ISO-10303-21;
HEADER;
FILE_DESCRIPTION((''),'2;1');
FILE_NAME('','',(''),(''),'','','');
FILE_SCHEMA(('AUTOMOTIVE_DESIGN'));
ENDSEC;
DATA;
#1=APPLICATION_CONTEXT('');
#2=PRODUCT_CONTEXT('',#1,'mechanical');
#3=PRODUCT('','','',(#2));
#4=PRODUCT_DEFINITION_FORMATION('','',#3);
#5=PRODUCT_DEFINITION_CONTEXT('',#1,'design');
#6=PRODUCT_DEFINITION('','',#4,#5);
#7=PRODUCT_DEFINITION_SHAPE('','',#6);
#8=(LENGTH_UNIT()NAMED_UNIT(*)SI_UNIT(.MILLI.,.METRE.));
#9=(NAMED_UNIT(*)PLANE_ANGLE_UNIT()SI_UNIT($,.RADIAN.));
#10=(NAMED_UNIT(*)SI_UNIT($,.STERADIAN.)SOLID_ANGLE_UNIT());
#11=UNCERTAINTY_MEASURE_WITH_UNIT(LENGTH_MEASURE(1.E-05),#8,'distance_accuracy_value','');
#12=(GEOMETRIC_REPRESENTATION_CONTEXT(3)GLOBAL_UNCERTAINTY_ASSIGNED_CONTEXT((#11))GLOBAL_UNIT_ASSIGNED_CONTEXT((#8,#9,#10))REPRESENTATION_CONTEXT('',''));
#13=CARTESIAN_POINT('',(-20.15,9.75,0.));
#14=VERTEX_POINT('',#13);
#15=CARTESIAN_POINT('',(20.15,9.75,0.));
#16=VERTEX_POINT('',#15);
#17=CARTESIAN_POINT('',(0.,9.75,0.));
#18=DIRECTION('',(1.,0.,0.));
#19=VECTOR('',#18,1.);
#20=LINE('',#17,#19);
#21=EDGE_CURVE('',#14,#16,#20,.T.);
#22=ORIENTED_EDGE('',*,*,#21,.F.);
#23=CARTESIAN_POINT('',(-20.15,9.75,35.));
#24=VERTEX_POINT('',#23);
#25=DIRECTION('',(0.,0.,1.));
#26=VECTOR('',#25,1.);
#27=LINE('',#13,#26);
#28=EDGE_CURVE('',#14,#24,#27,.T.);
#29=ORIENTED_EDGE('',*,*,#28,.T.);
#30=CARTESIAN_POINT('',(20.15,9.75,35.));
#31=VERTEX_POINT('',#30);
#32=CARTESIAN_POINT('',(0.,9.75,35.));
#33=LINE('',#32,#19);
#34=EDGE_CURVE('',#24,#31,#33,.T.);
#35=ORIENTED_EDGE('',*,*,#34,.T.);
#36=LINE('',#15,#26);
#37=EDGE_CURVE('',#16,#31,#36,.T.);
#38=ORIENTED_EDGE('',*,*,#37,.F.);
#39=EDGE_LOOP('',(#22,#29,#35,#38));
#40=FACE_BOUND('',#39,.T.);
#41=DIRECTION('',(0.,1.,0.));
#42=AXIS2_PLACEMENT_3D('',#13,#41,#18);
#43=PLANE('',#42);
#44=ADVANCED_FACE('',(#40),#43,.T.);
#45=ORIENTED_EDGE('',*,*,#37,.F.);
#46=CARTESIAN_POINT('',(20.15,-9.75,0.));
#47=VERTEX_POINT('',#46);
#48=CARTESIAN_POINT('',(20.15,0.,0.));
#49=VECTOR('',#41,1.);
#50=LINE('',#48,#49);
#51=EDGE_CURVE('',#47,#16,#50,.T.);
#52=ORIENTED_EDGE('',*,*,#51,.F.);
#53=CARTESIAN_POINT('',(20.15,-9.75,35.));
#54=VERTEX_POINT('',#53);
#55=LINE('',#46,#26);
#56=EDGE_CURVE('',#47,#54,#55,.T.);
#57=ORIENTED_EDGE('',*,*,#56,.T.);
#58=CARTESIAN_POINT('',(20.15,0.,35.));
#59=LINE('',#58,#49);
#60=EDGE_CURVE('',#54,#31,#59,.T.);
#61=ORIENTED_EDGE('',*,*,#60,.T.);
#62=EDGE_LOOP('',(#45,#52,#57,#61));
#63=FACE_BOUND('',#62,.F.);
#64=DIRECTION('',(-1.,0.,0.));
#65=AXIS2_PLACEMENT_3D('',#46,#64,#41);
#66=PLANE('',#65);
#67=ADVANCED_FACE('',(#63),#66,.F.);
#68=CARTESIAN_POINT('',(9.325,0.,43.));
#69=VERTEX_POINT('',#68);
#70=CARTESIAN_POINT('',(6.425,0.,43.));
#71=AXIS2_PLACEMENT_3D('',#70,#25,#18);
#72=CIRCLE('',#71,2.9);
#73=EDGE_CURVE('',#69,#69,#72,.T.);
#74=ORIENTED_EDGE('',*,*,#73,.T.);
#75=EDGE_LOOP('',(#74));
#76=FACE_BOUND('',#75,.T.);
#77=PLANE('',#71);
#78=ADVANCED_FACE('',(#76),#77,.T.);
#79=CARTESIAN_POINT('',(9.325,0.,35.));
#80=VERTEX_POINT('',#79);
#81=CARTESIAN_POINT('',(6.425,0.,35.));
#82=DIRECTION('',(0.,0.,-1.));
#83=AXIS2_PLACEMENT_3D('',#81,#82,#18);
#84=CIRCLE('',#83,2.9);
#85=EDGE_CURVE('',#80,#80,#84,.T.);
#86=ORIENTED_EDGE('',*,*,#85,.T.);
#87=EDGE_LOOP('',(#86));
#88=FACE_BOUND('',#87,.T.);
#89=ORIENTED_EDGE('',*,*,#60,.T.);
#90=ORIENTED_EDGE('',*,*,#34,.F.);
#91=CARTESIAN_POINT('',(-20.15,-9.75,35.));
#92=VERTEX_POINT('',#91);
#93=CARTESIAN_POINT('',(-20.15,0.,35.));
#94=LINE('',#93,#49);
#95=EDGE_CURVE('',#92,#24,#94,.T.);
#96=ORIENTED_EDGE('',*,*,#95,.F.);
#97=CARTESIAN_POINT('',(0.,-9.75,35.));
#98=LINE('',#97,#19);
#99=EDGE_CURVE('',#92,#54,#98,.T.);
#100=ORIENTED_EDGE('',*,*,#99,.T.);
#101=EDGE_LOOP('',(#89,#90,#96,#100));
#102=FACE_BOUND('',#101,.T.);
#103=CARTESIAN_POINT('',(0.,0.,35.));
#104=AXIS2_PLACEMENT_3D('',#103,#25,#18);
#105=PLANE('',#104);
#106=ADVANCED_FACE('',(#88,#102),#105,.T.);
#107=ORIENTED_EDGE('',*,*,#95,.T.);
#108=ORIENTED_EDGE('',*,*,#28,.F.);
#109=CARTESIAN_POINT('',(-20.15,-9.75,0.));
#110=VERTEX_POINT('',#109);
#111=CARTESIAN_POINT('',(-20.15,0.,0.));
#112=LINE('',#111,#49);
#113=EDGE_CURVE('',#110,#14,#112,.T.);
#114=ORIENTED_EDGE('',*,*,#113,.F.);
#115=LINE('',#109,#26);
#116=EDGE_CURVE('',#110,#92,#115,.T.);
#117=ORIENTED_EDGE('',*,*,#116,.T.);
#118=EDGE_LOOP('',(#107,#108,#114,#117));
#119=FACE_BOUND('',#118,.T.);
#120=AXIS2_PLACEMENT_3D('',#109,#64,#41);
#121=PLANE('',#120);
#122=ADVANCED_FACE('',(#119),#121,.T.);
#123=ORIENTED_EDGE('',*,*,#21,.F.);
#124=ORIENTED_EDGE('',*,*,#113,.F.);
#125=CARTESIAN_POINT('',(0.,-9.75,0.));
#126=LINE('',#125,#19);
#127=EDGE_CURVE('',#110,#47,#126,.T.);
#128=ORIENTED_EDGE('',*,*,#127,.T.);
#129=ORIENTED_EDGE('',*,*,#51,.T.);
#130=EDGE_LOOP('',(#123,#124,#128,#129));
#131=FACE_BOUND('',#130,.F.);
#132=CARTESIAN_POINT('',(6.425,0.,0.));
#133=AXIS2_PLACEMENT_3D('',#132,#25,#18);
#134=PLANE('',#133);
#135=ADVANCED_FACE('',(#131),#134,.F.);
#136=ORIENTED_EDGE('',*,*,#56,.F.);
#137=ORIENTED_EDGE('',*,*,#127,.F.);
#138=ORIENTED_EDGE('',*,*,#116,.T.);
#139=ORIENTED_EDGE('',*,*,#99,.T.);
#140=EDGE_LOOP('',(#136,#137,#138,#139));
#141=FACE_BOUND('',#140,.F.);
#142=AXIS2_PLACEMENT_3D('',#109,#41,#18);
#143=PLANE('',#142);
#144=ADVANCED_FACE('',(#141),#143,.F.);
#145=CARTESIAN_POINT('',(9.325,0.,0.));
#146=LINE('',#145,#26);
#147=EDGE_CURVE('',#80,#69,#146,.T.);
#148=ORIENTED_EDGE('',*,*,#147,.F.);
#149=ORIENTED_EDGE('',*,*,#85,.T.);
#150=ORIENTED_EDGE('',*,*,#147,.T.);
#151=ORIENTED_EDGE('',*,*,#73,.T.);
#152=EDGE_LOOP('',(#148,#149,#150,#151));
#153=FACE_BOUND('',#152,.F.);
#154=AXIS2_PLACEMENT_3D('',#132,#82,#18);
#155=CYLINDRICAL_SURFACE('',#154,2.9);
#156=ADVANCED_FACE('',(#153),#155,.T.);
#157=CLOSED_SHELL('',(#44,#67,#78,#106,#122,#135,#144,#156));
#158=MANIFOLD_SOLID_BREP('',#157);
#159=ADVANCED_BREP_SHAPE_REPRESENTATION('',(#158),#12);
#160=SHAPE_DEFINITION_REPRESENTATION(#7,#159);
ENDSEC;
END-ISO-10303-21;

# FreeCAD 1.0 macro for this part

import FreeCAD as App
import Part
import Sketcher
from FreeCAD import Vector
Q = App.Units.Quantity

doc = App.newDocument("Part")
body = doc.addObject("PartDesign::Body", "Body")

# Sketch on XY plane
sketch1 = body.newObject("Sketcher::SketchObject", "Sketch")
sketch1.AttachmentSupport = (doc.getObject("XY_Plane"), [""])
sketch1.MapMode = "FlatFace"
sketch1.addGeometry([
    Part.LineSegment(Vector(-20, 10, 0), Vector(-20, -10, 0)),
    Part.LineSegment(Vector(-20, -10, 0), Vector(20, -10, 0)),
    Part.LineSegment(Vector(20, -10, 0), Vector(20, 10, 0)),
    Part.LineSegment(Vector(20, 10, 0), Vector(-20, 10, 0)),
], False)
sketch1.addConstraint([
    Sketcher.Constraint("Coincident", 0, 2, 1, 1),
    Sketcher.Constraint("Coincident", 1, 2, 2, 1),
    Sketcher.Constraint("Coincident", 2, 2, 3, 1),
    Sketcher.Constraint("Coincident", 3, 2, 0, 1),
    Sketcher.Constraint("Vertical", 0),
    Sketcher.Constraint("Horizontal", 1),
    Sketcher.Constraint("Vertical", 2),
    Sketcher.Constraint("Horizontal", 3),
    Sketcher.Constraint("Symmetric", 0, 2, 2, 2, -1, 1),
    Sketcher.Constraint("DistanceX", 1, 1, 1, 2, Q("40.3 mm")),
    Sketcher.Constraint("DistanceY", 0, 2, 0, 1, Q("19.5 mm")),
])
pad1 = body.newObject("PartDesign::Pad", "Pad")
pad1.Profile = sketch1
pad1.Length = 35

# Sketch on XY plane
sketch2 = body.newObject("Sketcher::SketchObject", "Sketch001")
sketch2.AttachmentSupport = (doc.getObject("XY_Plane"), [""])
sketch2.MapMode = "FlatFace"
sketch2.addGeometry(Part.Circle(Vector(6.4, 0, 0), Vector(0, 0, 1), 2.9), False)
sketch2.addConstraint([
    Sketcher.Constraint("PointOnObject", 0, 3, -1),
    Sketcher.Constraint("Diameter", 0, Q("5.8 mm")),
    Sketcher.Constraint("DistanceX", -1, 1, 0, 3, Q("6.425 mm")),
])
pad2 = body.newObject("PartDesign::Pad", "Pad001")
pad2.Profile = sketch2
pad2.Length = 43

doc.recompute()
